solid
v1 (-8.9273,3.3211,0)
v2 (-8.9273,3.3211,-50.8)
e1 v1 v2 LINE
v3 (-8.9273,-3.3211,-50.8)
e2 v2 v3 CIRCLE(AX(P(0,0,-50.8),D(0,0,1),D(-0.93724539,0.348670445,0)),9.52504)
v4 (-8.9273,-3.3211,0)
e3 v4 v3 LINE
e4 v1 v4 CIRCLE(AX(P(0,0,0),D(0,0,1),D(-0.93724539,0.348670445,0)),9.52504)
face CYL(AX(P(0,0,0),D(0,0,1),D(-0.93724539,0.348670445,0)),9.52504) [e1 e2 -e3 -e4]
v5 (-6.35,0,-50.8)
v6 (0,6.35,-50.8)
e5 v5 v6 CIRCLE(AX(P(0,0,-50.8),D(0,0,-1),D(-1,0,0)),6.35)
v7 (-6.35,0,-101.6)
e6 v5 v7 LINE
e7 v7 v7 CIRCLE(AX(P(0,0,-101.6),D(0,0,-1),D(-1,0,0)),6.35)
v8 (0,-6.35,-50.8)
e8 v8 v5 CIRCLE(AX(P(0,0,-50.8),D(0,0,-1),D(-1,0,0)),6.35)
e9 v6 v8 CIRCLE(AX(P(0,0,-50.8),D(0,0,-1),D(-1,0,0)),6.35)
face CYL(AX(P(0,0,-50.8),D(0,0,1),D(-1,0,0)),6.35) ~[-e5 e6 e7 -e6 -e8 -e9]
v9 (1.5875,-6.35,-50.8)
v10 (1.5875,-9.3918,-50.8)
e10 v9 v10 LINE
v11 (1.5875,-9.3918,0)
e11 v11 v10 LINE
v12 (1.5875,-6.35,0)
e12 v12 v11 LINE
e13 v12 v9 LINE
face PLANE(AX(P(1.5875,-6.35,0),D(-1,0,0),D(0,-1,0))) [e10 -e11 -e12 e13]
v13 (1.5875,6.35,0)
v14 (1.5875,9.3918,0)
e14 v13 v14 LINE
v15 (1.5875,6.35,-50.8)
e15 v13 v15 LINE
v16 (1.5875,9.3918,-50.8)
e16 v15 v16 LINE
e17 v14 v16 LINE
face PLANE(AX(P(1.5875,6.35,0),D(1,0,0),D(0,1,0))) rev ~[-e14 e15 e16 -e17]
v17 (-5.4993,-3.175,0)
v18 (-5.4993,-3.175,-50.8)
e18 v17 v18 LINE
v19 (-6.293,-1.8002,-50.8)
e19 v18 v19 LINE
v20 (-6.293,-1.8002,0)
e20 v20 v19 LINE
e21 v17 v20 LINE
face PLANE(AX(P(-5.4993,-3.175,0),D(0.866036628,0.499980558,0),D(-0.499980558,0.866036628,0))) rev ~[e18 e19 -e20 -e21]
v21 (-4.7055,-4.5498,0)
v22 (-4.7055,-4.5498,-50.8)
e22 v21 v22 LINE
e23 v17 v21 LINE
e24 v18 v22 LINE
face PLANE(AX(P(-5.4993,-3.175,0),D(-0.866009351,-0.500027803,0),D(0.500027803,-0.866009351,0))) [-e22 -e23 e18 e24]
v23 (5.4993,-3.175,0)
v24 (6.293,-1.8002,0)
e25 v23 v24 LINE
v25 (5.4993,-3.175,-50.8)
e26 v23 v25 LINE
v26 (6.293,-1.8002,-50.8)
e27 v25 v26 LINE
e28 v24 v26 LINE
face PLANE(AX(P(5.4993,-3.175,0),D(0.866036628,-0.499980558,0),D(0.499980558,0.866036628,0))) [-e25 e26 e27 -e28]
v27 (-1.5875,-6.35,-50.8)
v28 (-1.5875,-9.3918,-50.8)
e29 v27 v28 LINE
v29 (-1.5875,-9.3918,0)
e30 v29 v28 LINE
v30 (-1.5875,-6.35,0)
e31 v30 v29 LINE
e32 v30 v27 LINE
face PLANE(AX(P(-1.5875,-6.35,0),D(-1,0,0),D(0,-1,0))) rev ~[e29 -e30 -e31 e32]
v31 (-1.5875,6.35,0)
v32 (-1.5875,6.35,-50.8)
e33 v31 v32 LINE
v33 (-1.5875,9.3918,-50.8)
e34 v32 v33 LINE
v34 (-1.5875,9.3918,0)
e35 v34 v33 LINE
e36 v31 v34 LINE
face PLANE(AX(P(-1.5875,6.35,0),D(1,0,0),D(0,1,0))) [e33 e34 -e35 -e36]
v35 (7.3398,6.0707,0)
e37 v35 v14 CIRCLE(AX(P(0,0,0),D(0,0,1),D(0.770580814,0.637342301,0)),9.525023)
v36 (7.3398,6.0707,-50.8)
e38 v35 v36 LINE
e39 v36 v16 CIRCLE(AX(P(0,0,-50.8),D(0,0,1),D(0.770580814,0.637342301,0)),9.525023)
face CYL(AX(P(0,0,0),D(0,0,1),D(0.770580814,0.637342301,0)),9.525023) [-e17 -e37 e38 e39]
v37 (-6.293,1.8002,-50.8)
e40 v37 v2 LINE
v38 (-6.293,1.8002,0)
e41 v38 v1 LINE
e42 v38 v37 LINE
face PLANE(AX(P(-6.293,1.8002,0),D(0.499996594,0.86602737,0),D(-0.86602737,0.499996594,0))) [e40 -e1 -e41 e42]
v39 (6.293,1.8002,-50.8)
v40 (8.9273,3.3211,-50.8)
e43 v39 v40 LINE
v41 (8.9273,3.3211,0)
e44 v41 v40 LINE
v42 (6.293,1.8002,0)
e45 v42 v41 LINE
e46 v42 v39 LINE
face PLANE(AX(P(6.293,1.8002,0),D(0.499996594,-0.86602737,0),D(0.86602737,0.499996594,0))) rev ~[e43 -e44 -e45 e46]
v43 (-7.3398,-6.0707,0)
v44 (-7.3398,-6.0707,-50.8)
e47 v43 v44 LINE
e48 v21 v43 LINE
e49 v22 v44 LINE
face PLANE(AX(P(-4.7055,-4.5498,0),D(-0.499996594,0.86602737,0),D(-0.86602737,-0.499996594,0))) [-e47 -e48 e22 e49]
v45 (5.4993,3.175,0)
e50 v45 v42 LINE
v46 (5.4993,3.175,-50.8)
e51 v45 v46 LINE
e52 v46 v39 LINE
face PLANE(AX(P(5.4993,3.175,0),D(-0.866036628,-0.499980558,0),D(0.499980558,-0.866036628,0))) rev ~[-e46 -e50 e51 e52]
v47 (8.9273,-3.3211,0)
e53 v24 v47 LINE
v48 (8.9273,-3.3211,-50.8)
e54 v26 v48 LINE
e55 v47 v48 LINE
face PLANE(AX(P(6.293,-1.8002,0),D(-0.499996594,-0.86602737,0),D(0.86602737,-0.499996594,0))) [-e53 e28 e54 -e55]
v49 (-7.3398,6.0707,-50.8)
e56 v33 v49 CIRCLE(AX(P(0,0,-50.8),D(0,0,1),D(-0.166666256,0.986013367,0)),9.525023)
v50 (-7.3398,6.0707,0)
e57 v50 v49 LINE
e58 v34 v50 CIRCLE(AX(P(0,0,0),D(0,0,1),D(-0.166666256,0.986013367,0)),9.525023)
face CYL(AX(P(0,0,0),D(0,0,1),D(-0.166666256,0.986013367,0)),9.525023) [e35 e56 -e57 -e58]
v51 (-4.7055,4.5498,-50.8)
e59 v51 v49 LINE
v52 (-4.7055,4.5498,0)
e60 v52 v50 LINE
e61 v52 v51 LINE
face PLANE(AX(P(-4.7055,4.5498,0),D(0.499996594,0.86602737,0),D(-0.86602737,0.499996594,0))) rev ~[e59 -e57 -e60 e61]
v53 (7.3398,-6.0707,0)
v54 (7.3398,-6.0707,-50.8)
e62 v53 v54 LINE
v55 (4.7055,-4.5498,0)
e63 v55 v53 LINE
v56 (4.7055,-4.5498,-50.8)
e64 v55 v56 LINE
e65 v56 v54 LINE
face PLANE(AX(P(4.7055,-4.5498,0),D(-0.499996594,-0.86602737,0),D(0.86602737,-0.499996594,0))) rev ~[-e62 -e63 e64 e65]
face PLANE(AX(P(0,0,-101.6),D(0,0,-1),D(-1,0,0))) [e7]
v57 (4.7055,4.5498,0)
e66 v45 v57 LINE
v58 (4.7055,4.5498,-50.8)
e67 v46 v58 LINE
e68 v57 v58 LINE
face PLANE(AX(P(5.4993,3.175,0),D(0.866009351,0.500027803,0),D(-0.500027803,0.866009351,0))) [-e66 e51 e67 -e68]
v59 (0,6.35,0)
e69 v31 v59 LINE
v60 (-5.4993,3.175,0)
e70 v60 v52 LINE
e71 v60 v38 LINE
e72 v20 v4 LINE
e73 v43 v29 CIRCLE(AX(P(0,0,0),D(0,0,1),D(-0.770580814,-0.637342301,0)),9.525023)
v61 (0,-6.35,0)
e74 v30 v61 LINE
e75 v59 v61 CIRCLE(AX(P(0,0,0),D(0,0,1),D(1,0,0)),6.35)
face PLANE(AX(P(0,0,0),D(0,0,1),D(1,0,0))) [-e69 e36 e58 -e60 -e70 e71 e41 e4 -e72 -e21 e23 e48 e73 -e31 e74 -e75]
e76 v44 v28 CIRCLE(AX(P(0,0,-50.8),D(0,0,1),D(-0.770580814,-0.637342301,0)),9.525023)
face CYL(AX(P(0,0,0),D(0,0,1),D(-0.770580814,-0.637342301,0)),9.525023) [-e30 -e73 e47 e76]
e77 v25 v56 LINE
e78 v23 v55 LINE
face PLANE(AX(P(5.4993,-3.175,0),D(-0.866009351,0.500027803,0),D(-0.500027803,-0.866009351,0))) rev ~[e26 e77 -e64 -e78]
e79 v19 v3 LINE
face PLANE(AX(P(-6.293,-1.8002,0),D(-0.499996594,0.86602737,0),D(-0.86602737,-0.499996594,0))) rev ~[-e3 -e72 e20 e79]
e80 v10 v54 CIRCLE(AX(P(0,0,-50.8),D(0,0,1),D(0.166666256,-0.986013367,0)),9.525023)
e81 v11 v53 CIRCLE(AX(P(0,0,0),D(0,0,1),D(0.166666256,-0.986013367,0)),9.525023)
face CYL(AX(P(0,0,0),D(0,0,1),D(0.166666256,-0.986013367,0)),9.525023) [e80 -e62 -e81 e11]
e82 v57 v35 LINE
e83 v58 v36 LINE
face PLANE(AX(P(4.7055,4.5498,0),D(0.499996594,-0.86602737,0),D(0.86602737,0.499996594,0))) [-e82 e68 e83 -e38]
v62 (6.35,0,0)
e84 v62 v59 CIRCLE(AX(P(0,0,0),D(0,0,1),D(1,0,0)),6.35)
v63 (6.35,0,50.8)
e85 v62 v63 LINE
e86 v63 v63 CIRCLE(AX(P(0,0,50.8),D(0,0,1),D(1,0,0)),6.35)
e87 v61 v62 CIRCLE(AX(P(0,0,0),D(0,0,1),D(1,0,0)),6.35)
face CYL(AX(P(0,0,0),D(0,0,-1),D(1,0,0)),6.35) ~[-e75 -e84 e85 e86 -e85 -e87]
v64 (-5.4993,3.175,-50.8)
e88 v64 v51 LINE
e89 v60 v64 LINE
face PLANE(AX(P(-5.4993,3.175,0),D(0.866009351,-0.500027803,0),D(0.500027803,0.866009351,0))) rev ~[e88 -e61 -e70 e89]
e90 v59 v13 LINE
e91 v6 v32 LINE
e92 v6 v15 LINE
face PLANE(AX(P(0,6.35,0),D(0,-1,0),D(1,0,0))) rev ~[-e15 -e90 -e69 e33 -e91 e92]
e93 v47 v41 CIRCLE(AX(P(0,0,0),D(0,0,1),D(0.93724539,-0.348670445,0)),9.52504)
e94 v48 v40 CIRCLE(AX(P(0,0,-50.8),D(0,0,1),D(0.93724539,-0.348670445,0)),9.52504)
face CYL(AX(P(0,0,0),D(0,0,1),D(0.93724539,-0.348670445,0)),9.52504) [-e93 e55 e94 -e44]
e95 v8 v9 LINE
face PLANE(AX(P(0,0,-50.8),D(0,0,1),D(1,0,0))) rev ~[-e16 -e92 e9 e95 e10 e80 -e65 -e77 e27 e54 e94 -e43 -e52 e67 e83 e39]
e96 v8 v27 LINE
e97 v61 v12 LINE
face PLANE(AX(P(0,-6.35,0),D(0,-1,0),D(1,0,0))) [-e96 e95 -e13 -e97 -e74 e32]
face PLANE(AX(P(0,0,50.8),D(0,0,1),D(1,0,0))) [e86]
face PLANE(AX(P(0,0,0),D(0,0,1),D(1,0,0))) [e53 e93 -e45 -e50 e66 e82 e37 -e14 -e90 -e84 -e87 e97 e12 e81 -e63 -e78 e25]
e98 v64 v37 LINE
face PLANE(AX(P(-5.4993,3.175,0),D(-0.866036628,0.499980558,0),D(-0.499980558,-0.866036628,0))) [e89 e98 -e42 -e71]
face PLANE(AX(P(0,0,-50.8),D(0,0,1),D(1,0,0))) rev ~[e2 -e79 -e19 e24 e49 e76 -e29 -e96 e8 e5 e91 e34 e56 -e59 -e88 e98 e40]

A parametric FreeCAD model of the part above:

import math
import FreeCAD as App
import Part
import Sketcher
Q = App.Units.Quantity

doc = App.newDocument("Part")
body = doc.addObject("PartDesign::Body", "Body")

# Sketch on XY plane
sketch1 = doc.addObject("Sketcher::SketchObject", "Sketch")
body.addObject(sketch1)
sketch1.AttachmentSupport = (doc.XY_Plane, [""])
sketch1.MapMode = "FlatFace"
sketch1.addGeometry(Part.LineSegment(App.Vector(1.6, 6.3, 0), App.Vector(-1.6, 6.3, 0)), False)
sketch1.addGeometry(Part.LineSegment(App.Vector(-1.6, 6.3, 0), App.Vector(-1.6, 9.4, 0)), False)
sketch1.addGeometry(Part.ArcOfCircle(Part.Circle(App.Vector(0, 0, 0), App.Vector(0, 0, 1), 9.5), math.radians(100), math.radians(140)), False)
sketch1.addGeometry(Part.LineSegment(App.Vector(-7.3, 6.1, 0), App.Vector(-4.7, 4.5, 0)), False)
sketch1.addGeometry(Part.LineSegment(App.Vector(-4.7, 4.5, 0), App.Vector(-5.5, 3.2, 0)), False)
sketch1.addGeometry(Part.LineSegment(App.Vector(-5.5, 3.2, 0), App.Vector(-6.3, 1.8, 0)), False)
sketch1.addGeometry(Part.LineSegment(App.Vector(-6.3, 1.8, 0), App.Vector(-8.9, 3.3, 0)), False)
sketch1.addGeometry(Part.ArcOfCircle(Part.Circle(App.Vector(0, 0, 0), App.Vector(0, 0, 1), 9.5), math.radians(160), math.radians(200)), False)
sketch1.addGeometry(Part.LineSegment(App.Vector(-8.9, -3.3, 0), App.Vector(-6.3, -1.8, 0)), False)
sketch1.addGeometry(Part.LineSegment(App.Vector(-6.3, -1.8, 0), App.Vector(-5.5, -3.2, 0)), False)
sketch1.addGeometry(Part.LineSegment(App.Vector(-5.5, -3.2, 0), App.Vector(-4.7, -4.5, 0)), False)
sketch1.addGeometry(Part.LineSegment(App.Vector(-4.7, -4.5, 0), App.Vector(-7.3, -6.1, 0)), False)
sketch1.addGeometry(Part.ArcOfCircle(Part.Circle(App.Vector(0, 0, 0), App.Vector(0, 0, 1), 9.5), math.radians(-140), math.radians(-100)), False)
sketch1.addGeometry(Part.LineSegment(App.Vector(-1.6, -9.4, 0), App.Vector(-1.6, -6.3, 0)), False)
sketch1.addGeometry(Part.LineSegment(App.Vector(-1.6, -6.3, 0), App.Vector(1.6, -6.3, 0)), False)
sketch1.addGeometry(Part.LineSegment(App.Vector(1.6, -6.3, 0), App.Vector(1.6, -9.4, 0)), False)
sketch1.addGeometry(Part.ArcOfCircle(Part.Circle(App.Vector(0, 0, 0), App.Vector(0, 0, 1), 9.5), math.radians(-80), math.radians(-40)), False)
sketch1.addGeometry(Part.LineSegment(App.Vector(7.3, -6.1, 0), App.Vector(4.7, -4.5, 0)), False)
sketch1.addGeometry(Part.LineSegment(App.Vector(4.7, -4.5, 0), App.Vector(5.5, -3.2, 0)), False)
sketch1.addGeometry(Part.LineSegment(App.Vector(5.5, -3.2, 0), App.Vector(6.3, -1.8, 0)), False)
sketch1.addGeometry(Part.LineSegment(App.Vector(6.3, -1.8, 0), App.Vector(8.9, -3.3, 0)), False)
sketch1.addGeometry(Part.ArcOfCircle(Part.Circle(App.Vector(0, 0, 0), App.Vector(0, 0, 1), 9.5), math.radians(-20), math.radians(20)), False)
sketch1.addGeometry(Part.LineSegment(App.Vector(8.9, 3.3, 0), App.Vector(6.3, 1.8, 0)), False)
sketch1.addGeometry(Part.LineSegment(App.Vector(6.3, 1.8, 0), App.Vector(5.5, 3.2, 0)), False)
sketch1.addGeometry(Part.LineSegment(App.Vector(5.5, 3.2, 0), App.Vector(4.7, 4.5, 0)), False)
sketch1.addGeometry(Part.LineSegment(App.Vector(4.7, 4.5, 0), App.Vector(7.3, 6.1, 0)), False)
sketch1.addGeometry(Part.ArcOfCircle(Part.Circle(App.Vector(0, 0, 0), App.Vector(0, 0, 1), 9.5), math.radians(40), math.radians(80)), False)
sketch1.addGeometry(Part.LineSegment(App.Vector(1.6, 9.4, 0), App.Vector(1.6, 6.3, 0)), False)
sketch1.addConstraint(Sketcher.Constraint("Coincident", 0, 2, 1, 1))
sketch1.addConstraint(Sketcher.Constraint("Coincident", 1, 2, 2, 1))
sketch1.addConstraint(Sketcher.Constraint("Coincident", 2, 2, 3, 1))
sketch1.addConstraint(Sketcher.Constraint("Coincident", 3, 2, 4, 1))
sketch1.addConstraint(Sketcher.Constraint("Coincident", 4, 2, 5, 1))
sketch1.addConstraint(Sketcher.Constraint("Coincident", 5, 2, 6, 1))
sketch1.addConstraint(Sketcher.Constraint("Coincident", 6, 2, 7, 1))
sketch1.addConstraint(Sketcher.Constraint("Coincident", 7, 2, 8, 1))
sketch1.addConstraint(Sketcher.Constraint("Coincident", 8, 2, 9, 1))
sketch1.addConstraint(Sketcher.Constraint("Coincident", 9, 2, 10, 1))
sketch1.addConstraint(Sketcher.Constraint("Coincident", 10, 2, 11, 1))
sketch1.addConstraint(Sketcher.Constraint("Coincident", 11, 2, 12, 1))
sketch1.addConstraint(Sketcher.Constraint("Coincident", 12, 2, 13, 1))
sketch1.addConstraint(Sketcher.Constraint("Coincident", 13, 2, 14, 1))
sketch1.addConstraint(Sketcher.Constraint("Coincident", 14, 2, 15, 1))
sketch1.addConstraint(Sketcher.Constraint("Coincident", 15, 2, 16, 1))
sketch1.addConstraint(Sketcher.Constraint("Coincident", 16, 2, 17, 1))
sketch1.addConstraint(Sketcher.Constraint("Coincident", 17, 2, 18, 1))
sketch1.addConstraint(Sketcher.Constraint("Coincident", 18, 2, 19, 1))
sketch1.addConstraint(Sketcher.Constraint("Coincident", 19, 2, 20, 1))
sketch1.addConstraint(Sketcher.Constraint("Coincident", 20, 2, 21, 1))
sketch1.addConstraint(Sketcher.Constraint("Coincident", 21, 2, 22, 1))
sketch1.addConstraint(Sketcher.Constraint("Coincident", 22, 2, 23, 1))
sketch1.addConstraint(Sketcher.Constraint("Coincident", 23, 2, 24, 1))
sketch1.addConstraint(Sketcher.Constraint("Coincident", 24, 2, 25, 1))
sketch1.addConstraint(Sketcher.Constraint("Coincident", 25, 2, 26, 1))
sketch1.addConstraint(Sketcher.Constraint("Coincident", 26, 2, 27, 1))
sketch1.addConstraint(Sketcher.Constraint("Coincident", 27, 2, 0, 1))
sketch1.addConstraint(Sketcher.Constraint("Horizontal", 0))
sketch1.addConstraint(Sketcher.Constraint("Vertical", 1))
sketch1.addConstraint(Sketcher.Constraint("Vertical", 13))
sketch1.addConstraint(Sketcher.Constraint("Horizontal", 14))
sketch1.addConstraint(Sketcher.Constraint("Vertical", 15))
sketch1.addConstraint(Sketcher.Constraint("Vertical", 27))
sketch1.addConstraint(Sketcher.Constraint("Coincident", 2, 3, -1, 1))
sketch1.addConstraint(Sketcher.Constraint("Coincident", 7, 3, -1, 1))
sketch1.addConstraint(Sketcher.Constraint("Coincident", 12, 3, -1, 1))
sketch1.addConstraint(Sketcher.Constraint("Coincident", 16, 3, -1, 1))
sketch1.addConstraint(Sketcher.Constraint("Coincident", 21, 3, -1, 1))
sketch1.addConstraint(Sketcher.Constraint("Coincident", 26, 3, -1, 1))
sketch1.addConstraint(Sketcher.Constraint("Equal", 2, 7))
sketch1.addConstraint(Sketcher.Constraint("Equal", 7, 12))
sketch1.addConstraint(Sketcher.Constraint("Equal", 12, 16))
sketch1.addConstraint(Sketcher.Constraint("Equal", 16, 21))
sketch1.addConstraint(Sketcher.Constraint("Equal", 21, 26))
sketch1.addConstraint(Sketcher.Constraint("Symmetric", 0, 2, 14, 2, -1, 1))
sketch1.addConstraint(Sketcher.Constraint("Symmetric", 3, 2, 17, 2, -1, 1))
sketch1.addConstraint(Sketcher.Constraint("Symmetric", 4, 2, 18, 2, -1, 1))
sketch1.addConstraint(Sketcher.Constraint("Symmetric", 5, 2, 19, 2, -1, 1))
sketch1.addConstraint(Sketcher.Constraint("Symmetric", 8, 2, 22, 2, -1, 1))
sketch1.addConstraint(Sketcher.Constraint("Symmetric", 9, 2, 23, 2, -1, 1))
sketch1.addConstraint(Sketcher.Constraint("Symmetric", 10, 2, 24, 2, -1, 1))
sketch1.addConstraint(Sketcher.Constraint("Symmetric", 10, 2, 17, 2, -2))
sketch1.addConstraint(Sketcher.Constraint("Symmetric", 9, 2, 18, 2, -2))
sketch1.addConstraint(Sketcher.Constraint("Symmetric", 8, 2, 19, 2, -2))
sketch1.addConstraint(Sketcher.Constraint("Perpendicular", 3, 4))
sketch1.addConstraint(Sketcher.Constraint("Parallel", 4, 5))
sketch1.addConstraint(Sketcher.Constraint("Perpendicular", 5, 6))
sketch1.addConstraint(Sketcher.Constraint("Perpendicular", 8, 9))
sketch1.addConstraint(Sketcher.Constraint("Perpendicular", 10, 11))
sketch1.addConstraint(Sketcher.Constraint("Parallel", 6, 17))
sketch1.addConstraint(Sketcher.Constraint("Perpendicular", 19, 20))
sketch1.addConstraint(Sketcher.Constraint("Parallel", 11, 22))
sketch1.addConstraint(Sketcher.Constraint("Perpendicular", 24, 25))
sketch1.addConstraint(Sketcher.Constraint("Horizontal", 12, 2, 15, 2))
sketch1.addConstraint(Sketcher.Constraint("Horizontal", 1, 2, 26, 2))
sketch1.addConstraint(Sketcher.Constraint("Equal", 4, 5))
sketch1.addConstraint(Sketcher.Constraint("Equal", 3, 6))
sketch1.addConstraint(Sketcher.Constraint("DistanceX", 0, 2, 0, 1, Q("0.125 in")))
sketch1.addConstraint(Sketcher.Constraint("DistanceY", -1, 1, 4, 2, Q("0.125 in")))
sketch1.addConstraint(Sketcher.Constraint("Angle", 3, Q("-29.9998 deg")))
sketch1.addConstraint(Sketcher.Constraint("Radius", 2, Q("0.375 in")))
sketch1.addConstraint(Sketcher.Constraint("DistanceY", 4, 2, 0, 2, Q("0.125 in")))
sketch1.addConstraint(Sketcher.Constraint("Distance", 4, Q("0.0625 in")))
pad1 = doc.addObject("PartDesign::Pad", "Pad")
body.addObject(pad1)
pad1.Profile = sketch1
pad1.Length = Q("2 in")
pad1.Reversed = True

# Sketch on XY plane
sketch2 = doc.addObject("Sketcher::SketchObject", "Sketch001")
body.addObject(sketch2)
sketch2.AttachmentSupport = (doc.XY_Plane, [""])
sketch2.MapMode = "FlatFace"
sketch2.AttachmentOffset = App.Placement(App.Vector(0, 0, -2 * 25.4), App.Rotation())
sketch2.addGeometry(Part.Circle(App.Vector(0, 0, 0), App.Vector(0, 0, 1), 6), False)
sketch2.addConstraint(Sketcher.Constraint("Coincident", 0, 3, -1, 1))
sketch2.addConstraint(Sketcher.Constraint("Diameter", 0, Q("0.5 in")))
pad2 = doc.addObject("PartDesign::Pad", "Pad001")
body.addObject(pad2)
pad2.Profile = sketch2
pad2.Length = Q("2 in")
pad2.Reversed = True

# Sketch on XY plane
sketch3 = doc.addObject("Sketcher::SketchObject", "Sketch002")
body.addObject(sketch3)
sketch3.AttachmentSupport = (doc.XY_Plane, [""])
sketch3.MapMode = "FlatFace"
sketch3.addGeometry(Part.Circle(App.Vector(0, 0, 0), App.Vector(0, 0, 1), 6), False)
sketch3.addConstraint(Sketcher.Constraint("Coincident", 0, 3, -1, 1))
sketch3.addConstraint(Sketcher.Constraint("Diameter", 0, Q("0.5 in")))
pad3 = doc.addObject("PartDesign::Pad", "Pad002")
body.addObject(pad3)
pad3.Profile = sketch3
pad3.Length = Q("2 in")

doc.recompute()
